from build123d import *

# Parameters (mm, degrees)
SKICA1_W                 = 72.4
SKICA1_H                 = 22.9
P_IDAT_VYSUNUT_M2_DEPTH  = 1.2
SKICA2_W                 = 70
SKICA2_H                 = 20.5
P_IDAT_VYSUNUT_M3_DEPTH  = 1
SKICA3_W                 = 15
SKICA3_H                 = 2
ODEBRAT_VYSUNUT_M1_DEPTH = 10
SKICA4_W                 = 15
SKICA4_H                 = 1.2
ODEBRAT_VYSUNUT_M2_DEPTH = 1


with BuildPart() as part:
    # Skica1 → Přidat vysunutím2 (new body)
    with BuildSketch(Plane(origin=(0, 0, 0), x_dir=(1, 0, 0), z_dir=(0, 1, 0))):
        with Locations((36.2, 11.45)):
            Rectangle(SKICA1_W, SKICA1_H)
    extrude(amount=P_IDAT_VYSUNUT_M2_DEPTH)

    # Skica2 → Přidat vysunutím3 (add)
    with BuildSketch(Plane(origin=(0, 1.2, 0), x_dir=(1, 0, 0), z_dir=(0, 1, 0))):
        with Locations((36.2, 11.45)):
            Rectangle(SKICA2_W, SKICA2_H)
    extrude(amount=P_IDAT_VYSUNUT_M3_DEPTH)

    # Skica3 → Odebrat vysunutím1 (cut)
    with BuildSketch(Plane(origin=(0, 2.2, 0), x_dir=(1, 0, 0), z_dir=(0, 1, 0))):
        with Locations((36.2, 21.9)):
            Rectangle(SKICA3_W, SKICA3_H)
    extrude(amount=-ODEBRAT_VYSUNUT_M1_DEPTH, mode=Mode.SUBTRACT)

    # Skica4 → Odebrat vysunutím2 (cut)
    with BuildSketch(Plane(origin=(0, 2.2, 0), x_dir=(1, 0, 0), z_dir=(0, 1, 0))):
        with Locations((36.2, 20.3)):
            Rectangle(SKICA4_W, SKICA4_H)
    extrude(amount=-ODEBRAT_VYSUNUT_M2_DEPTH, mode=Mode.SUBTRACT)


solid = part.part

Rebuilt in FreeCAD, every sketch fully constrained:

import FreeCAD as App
import Part
import Sketcher

V = App.Vector


def add_polygon(sketch, points):
    """Adds a closed chain of lines whose ends are joined by coincident constraints."""
    first, n = sketch.GeometryCount, len(points)
    for a, b in zip(points, points[1:] + points[:1]):
        sketch.addGeometry(Part.LineSegment(App.Vector(*a, 0), App.Vector(*b, 0)), False)
    for i in range(n):
        sketch.addConstraint(Sketcher.Constraint("Coincident", first + i, 2, first + (i + 1) % n, 1))

doc = App.newDocument("Part")
body = doc.addObject("PartDesign::Body", "Body")

# Sketch on XZ plane
sketch1 = doc.addObject("Sketcher::SketchObject", "Sketch")
body.addObject(sketch1)
sketch1.AttachmentSupport = (doc.XZ_Plane, [""])
sketch1.MapMode = "FlatFace"
add_polygon(sketch1, [(0, -23), (0, 0), (72, 0), (72, -23)])  # lines 0-3
sketch1.addConstraint([
    Sketcher.Constraint("Vertical", 0),
    Sketcher.Constraint("Horizontal", 1),
    Sketcher.Constraint("Vertical", 2),
    Sketcher.Constraint("Horizontal", 3),
    Sketcher.Constraint("Coincident", 0, 2, -1, 1),
    Sketcher.Constraint("DistanceX", 1, 1, 1, 2, 72.4),
    Sketcher.Constraint("DistanceY", 0, 1, 0, 2, 22.9),
])
pad1 = doc.addObject("PartDesign::Pad", "Pad")
body.addObject(pad1)
pad1.Profile = sketch1
pad1.Length = 1.2
pad1.Reversed = True

# Sketch on XZ plane
sketch2 = doc.addObject("Sketcher::SketchObject", "Sketch001")
body.addObject(sketch2)
sketch2.AttachmentSupport = (doc.XZ_Plane, [""])
sketch2.MapMode = "FlatFace"
sketch2.AttachmentOffset = App.Placement(V(0, 0, -1.2), App.Rotation())
add_polygon(sketch2, [(1, -22), (1, -1), (71, -1), (71, -22)])  # lines 0-3
sketch2.addConstraint([
    Sketcher.Constraint("Vertical", 0),
    Sketcher.Constraint("Horizontal", 1),
    Sketcher.Constraint("Vertical", 2),
    Sketcher.Constraint("Horizontal", 3),
    Sketcher.Constraint("DistanceX", 1, 1, 1, 2, 70.0),
    Sketcher.Constraint("DistanceY", 0, 1, 0, 2, 20.5),
    Sketcher.Constraint("DistanceX", -1, 1, 0, 2, 1.2),
    Sketcher.Constraint("DistanceY", 0, 2, -1, 1, 1.2),
])
pad2 = doc.addObject("PartDesign::Pad", "Pad001")
body.addObject(pad2)
pad2.Profile = sketch2
pad2.Length = 1
pad2.Reversed = True

# Sketch on XZ plane
sketch3 = doc.addObject("Sketcher::SketchObject", "Sketch002")
body.addObject(sketch3)
sketch3.AttachmentSupport = (doc.XZ_Plane, [""])
sketch3.MapMode = "FlatFace"
sketch3.AttachmentOffset = App.Placement(V(0, 0, -2.2), App.Rotation())
add_polygon(sketch3, [(28.7, -22.9), (28.7, -20.9), (43.7, -20.9), (43.7, -22.9)])  # lines 0-3
sketch3.addConstraint([
    Sketcher.Constraint("Vertical", 0),
    Sketcher.Constraint("Horizontal", 1),
    Sketcher.Constraint("Vertical", 2),
    Sketcher.Constraint("Horizontal", 3),
    Sketcher.Constraint("DistanceX", 1, 1, 1, 2, 15.0),
    Sketcher.Constraint("DistanceY", 0, 1, 0, 2, 2.0),
    Sketcher.Constraint("DistanceX", -1, 1, 0, 2, 28.7),
    Sketcher.Constraint("DistanceY", 0, 2, -1, 1, 20.9),
])
pocket1 = doc.addObject("PartDesign::Pocket", "Pocket")
body.addObject(pocket1)
pocket1.Profile = sketch3
pocket1.Length = 10
pocket1.Reversed = True

# Sketch on XZ plane
sketch4 = doc.addObject("Sketcher::SketchObject", "Sketch003")
body.addObject(sketch4)
sketch4.AttachmentSupport = (doc.XZ_Plane, [""])
sketch4.MapMode = "FlatFace"
sketch4.AttachmentOffset = App.Placement(V(0, 0, -2.2), App.Rotation())
add_polygon(sketch4, [(28.7, -20.9), (28.7, -19.7), (43.7, -19.7), (43.7, -20.9)])  # lines 0-3
sketch4.addConstraint([
    Sketcher.Constraint("Vertical", 0),
    Sketcher.Constraint("Horizontal", 1),
    Sketcher.Constraint("Vertical", 2),
    Sketcher.Constraint("Horizontal", 3),
    Sketcher.Constraint("DistanceX", 1, 1, 1, 2, 15.0),
    Sketcher.Constraint("DistanceY", 0, 1, 0, 2, 1.2),
    Sketcher.Constraint("DistanceX", -1, 1, 0, 2, 28.7),
    Sketcher.Constraint("DistanceY", 0, 2, -1, 1, 19.7),
])
pocket2 = doc.addObject("PartDesign::Pocket", "Pocket001")
body.addObject(pocket2)
pocket2.Profile = sketch4
pocket2.Length = 1
pocket2.Reversed = True

doc.recompute()
